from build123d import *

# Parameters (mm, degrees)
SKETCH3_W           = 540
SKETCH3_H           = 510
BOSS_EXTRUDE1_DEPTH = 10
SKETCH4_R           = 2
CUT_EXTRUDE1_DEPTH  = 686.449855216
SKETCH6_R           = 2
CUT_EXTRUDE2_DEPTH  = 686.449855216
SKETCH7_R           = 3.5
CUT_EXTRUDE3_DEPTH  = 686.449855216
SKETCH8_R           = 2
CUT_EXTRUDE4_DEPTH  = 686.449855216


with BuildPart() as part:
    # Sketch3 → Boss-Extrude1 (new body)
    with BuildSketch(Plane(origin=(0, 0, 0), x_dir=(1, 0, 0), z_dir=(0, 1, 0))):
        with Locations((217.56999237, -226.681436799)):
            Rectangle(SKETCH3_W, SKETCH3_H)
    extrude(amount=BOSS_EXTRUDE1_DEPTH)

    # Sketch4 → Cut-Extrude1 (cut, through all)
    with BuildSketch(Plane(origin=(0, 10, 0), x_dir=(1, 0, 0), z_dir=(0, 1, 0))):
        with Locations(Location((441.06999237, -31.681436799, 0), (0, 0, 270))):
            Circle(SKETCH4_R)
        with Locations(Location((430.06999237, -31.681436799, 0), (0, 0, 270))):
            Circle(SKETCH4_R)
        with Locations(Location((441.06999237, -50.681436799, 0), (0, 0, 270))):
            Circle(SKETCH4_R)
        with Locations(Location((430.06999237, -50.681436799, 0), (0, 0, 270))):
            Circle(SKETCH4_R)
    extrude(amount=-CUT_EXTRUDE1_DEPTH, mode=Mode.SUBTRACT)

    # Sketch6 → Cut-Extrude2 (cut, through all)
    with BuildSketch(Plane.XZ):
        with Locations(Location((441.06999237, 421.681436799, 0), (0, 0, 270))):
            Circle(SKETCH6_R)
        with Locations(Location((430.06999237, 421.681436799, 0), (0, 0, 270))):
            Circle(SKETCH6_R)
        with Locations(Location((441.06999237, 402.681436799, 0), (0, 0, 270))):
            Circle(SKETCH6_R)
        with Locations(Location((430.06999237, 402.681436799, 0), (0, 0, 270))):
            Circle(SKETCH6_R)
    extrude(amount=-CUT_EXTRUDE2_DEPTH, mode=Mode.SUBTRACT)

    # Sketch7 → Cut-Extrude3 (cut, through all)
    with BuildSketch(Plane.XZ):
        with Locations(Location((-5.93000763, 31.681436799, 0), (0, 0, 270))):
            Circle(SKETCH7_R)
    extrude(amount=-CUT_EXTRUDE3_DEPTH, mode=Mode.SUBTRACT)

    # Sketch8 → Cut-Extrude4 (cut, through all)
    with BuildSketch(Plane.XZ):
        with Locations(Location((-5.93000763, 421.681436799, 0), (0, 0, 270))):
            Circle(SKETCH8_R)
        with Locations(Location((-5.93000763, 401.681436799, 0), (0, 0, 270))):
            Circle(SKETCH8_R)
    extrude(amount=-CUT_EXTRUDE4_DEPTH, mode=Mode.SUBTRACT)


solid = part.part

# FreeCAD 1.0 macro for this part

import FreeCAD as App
import Part
import Sketcher


def add_polygon(sketch, points):
    """Adds a closed chain of lines whose ends are joined by coincident constraints."""
    first, n = sketch.GeometryCount, len(points)
    for a, b in zip(points, points[1:] + points[:1]):
        sketch.addGeometry(Part.LineSegment(App.Vector(*a, 0), App.Vector(*b, 0)), False)
    for i in range(n):
        sketch.addConstraint(Sketcher.Constraint("Coincident", first + i, 2, first + (i + 1) % n, 1))

doc = App.newDocument("Part")
params = doc.addObject("Spreadsheet::Sheet", "Params")
for row, (alias, value) in enumerate([
    ("sketch1_width", "540 mm"),
    ("sketch1_height", "510 mm"),
    ("pad1_length", "10 mm"),
    ("sketch2_diameter", "4 mm"),
    ("sketch3_diameter", "4 mm"),
    ("sketch4_diameter", "7 mm"),
    ("sketch5_diameter", "4 mm"),
], start=1):
    params.set(f"A{row}", alias)
    params.set(f"B{row}", "=" + value)
    params.setAlias(f"B{row}", alias)

body = doc.addObject("PartDesign::Body", "Body")

# Sketch on XZ plane
sketch1 = doc.addObject("Sketcher::SketchObject", "Sketch")
body.addObject(sketch1)
sketch1.AttachmentSupport = (doc.XZ_Plane, [""])
sketch1.MapMode = "FlatFace"
add_polygon(sketch1, [(-52.430008, -28.318563), (-52.430008, 481.681437), (487.569992, 481.681437), (487.569992, -28.318563)])  # lines 0-3
sketch1.addConstraint([
    Sketcher.Constraint("Vertical", 0),
    Sketcher.Constraint("Horizontal", 1),
    Sketcher.Constraint("Vertical", 2),
    Sketcher.Constraint("Horizontal", 3),
    Sketcher.Constraint("DistanceX", 1, 1, 1, 2, 540.0),
    Sketcher.Constraint("DistanceY", 0, 1, 0, 2, 510.0),
    Sketcher.Constraint("DistanceX", 0, 2, -1, 1, 52.430008),
    Sketcher.Constraint("DistanceY", -1, 1, 0, 2, 481.681437),
])
sketch1.setExpression("Constraints[8]", "Params.sketch1_width")
sketch1.setExpression("Constraints[9]", "Params.sketch1_height")
pad1 = doc.addObject("PartDesign::Pad", "Pad")
body.addObject(pad1)
pad1.Profile = sketch1
pad1.setExpression("Length", "Params.pad1_length")
pad1.Reversed = True

# Sketch on XZ plane
sketch2 = doc.addObject("Sketcher::SketchObject", "Sketch001")
body.addObject(sketch2)
sketch2.AttachmentSupport = (doc.XZ_Plane, [""])
sketch2.MapMode = "FlatFace"
sketch2.AttachmentOffset = App.Placement(App.Vector(0, 0, -10), App.Rotation())
sketch2.addGeometry([
    Part.Circle(App.Vector(441.069992, 31.681437, 0), App.Vector(0, 0, 1), 2),
    Part.Circle(App.Vector(430.069992, 31.681437, 0), App.Vector(0, 0, 1), 2),
    Part.Circle(App.Vector(441.069992, 50.681437, 0), App.Vector(0, 0, 1), 2),
    Part.Circle(App.Vector(430.069992, 50.681437, 0), App.Vector(0, 0, 1), 2),
], False)
sketch2.addConstraint([
    Sketcher.Constraint("Equal", 0, 1),
    Sketcher.Constraint("Equal", 1, 2),
    Sketcher.Constraint("Equal", 2, 3),
    Sketcher.Constraint("Horizontal", 0, 3, 1, 3),
    Sketcher.Constraint("Horizontal", 2, 3, 3, 3),
    Sketcher.Constraint("Vertical", 0, 3, 2, 3),
    Sketcher.Constraint("Vertical", 1, 3, 3, 3),
    Sketcher.Constraint("Diameter", 0, 4.0),
    Sketcher.Constraint("DistanceX", 1, 3, 0, 3, 11.0),
    Sketcher.Constraint("DistanceY", 0, 3, 2, 3, 19.0),
    Sketcher.Constraint("DistanceX", -1, 1, 0, 3, 441.069992),
    Sketcher.Constraint("DistanceY", -1, 1, 0, 3, 31.681437),
])
sketch2.setExpression("Constraints[7]", "Params.sketch2_diameter")
pocket1 = doc.addObject("PartDesign::Pocket", "Pocket")
body.addObject(pocket1)
pocket1.Profile = sketch2
pocket1.Type = "ThroughAll"
pocket1.Reversed = True

# Sketch on XZ plane
sketch3 = doc.addObject("Sketcher::SketchObject", "Sketch002")
body.addObject(sketch3)
sketch3.AttachmentSupport = (doc.XZ_Plane, [""])
sketch3.MapMode = "FlatFace"
sketch3.addGeometry([
    Part.Circle(App.Vector(441.069992, 421.681437, 0), App.Vector(0, 0, 1), 2),
    Part.Circle(App.Vector(430.069992, 421.681437, 0), App.Vector(0, 0, 1), 2),
    Part.Circle(App.Vector(441.069992, 402.681437, 0), App.Vector(0, 0, 1), 2),
    Part.Circle(App.Vector(430.069992, 402.681437, 0), App.Vector(0, 0, 1), 2),
], False)
sketch3.addConstraint([
    Sketcher.Constraint("Equal", 0, 1),
    Sketcher.Constraint("Equal", 1, 2),
    Sketcher.Constraint("Equal", 2, 3),
    Sketcher.Constraint("Horizontal", 0, 3, 1, 3),
    Sketcher.Constraint("Horizontal", 2, 3, 3, 3),
    Sketcher.Constraint("Vertical", 0, 3, 2, 3),
    Sketcher.Constraint("Vertical", 1, 3, 3, 3),
    Sketcher.Constraint("Diameter", 0, 4.0),
    Sketcher.Constraint("DistanceX", 1, 3, 0, 3, 11.0),
    Sketcher.Constraint("DistanceY", 2, 3, 0, 3, 19.0),
    Sketcher.Constraint("DistanceX", -1, 1, 0, 3, 441.069992),
    Sketcher.Constraint("DistanceY", -1, 1, 0, 3, 421.681437),
])
sketch3.setExpression("Constraints[7]", "Params.sketch3_diameter")
pocket2 = doc.addObject("PartDesign::Pocket", "Pocket001")
body.addObject(pocket2)
pocket2.Profile = sketch3
pocket2.Type = "ThroughAll"

# Sketch on XZ plane
sketch4 = doc.addObject("Sketcher::SketchObject", "Sketch003")
body.addObject(sketch4)
sketch4.AttachmentSupport = (doc.XZ_Plane, [""])
sketch4.MapMode = "FlatFace"
sketch4.addGeometry(Part.Circle(App.Vector(-5.930008, 31.681437, 0), App.Vector(0, 0, 1), 3.5), False)
sketch4.addConstraint([
    Sketcher.Constraint("Diameter", 0, 7.0),
    Sketcher.Constraint("DistanceX", 0, 3, -1, 1, 5.930008),
    Sketcher.Constraint("DistanceY", -1, 1, 0, 3, 31.681437),
])
sketch4.setExpression("Constraints[0]", "Params.sketch4_diameter")
pocket3 = doc.addObject("PartDesign::Pocket", "Pocket002")
body.addObject(pocket3)
pocket3.Profile = sketch4
pocket3.Type = "ThroughAll"

# Sketch on XZ plane
sketch5 = doc.addObject("Sketcher::SketchObject", "Sketch004")
body.addObject(sketch5)
sketch5.AttachmentSupport = (doc.XZ_Plane, [""])
sketch5.MapMode = "FlatFace"
sketch5.addGeometry([
    Part.Circle(App.Vector(-5.930008, 421.681437, 0), App.Vector(0, 0, 1), 2),
    Part.Circle(App.Vector(-5.930008, 401.681437, 0), App.Vector(0, 0, 1), 2),
], False)
sketch5.addConstraint([
    Sketcher.Constraint("Equal", 0, 1),
    Sketcher.Constraint("Vertical", 0, 3, 1, 3),
    Sketcher.Constraint("Diameter", 0, 4.0),
    Sketcher.Constraint("DistanceY", 1, 3, 0, 3, 20.0),
    Sketcher.Constraint("DistanceX", 0, 3, -1, 1, 5.930008),
    Sketcher.Constraint("DistanceY", -1, 1, 0, 3, 421.681437),
])
sketch5.setExpression("Constraints[2]", "Params.sketch5_diameter")
pocket4 = doc.addObject("PartDesign::Pocket", "Pocket003")
body.addObject(pocket4)
pocket4.Profile = sketch5
pocket4.Type = "ThroughAll"

doc.recompute()
